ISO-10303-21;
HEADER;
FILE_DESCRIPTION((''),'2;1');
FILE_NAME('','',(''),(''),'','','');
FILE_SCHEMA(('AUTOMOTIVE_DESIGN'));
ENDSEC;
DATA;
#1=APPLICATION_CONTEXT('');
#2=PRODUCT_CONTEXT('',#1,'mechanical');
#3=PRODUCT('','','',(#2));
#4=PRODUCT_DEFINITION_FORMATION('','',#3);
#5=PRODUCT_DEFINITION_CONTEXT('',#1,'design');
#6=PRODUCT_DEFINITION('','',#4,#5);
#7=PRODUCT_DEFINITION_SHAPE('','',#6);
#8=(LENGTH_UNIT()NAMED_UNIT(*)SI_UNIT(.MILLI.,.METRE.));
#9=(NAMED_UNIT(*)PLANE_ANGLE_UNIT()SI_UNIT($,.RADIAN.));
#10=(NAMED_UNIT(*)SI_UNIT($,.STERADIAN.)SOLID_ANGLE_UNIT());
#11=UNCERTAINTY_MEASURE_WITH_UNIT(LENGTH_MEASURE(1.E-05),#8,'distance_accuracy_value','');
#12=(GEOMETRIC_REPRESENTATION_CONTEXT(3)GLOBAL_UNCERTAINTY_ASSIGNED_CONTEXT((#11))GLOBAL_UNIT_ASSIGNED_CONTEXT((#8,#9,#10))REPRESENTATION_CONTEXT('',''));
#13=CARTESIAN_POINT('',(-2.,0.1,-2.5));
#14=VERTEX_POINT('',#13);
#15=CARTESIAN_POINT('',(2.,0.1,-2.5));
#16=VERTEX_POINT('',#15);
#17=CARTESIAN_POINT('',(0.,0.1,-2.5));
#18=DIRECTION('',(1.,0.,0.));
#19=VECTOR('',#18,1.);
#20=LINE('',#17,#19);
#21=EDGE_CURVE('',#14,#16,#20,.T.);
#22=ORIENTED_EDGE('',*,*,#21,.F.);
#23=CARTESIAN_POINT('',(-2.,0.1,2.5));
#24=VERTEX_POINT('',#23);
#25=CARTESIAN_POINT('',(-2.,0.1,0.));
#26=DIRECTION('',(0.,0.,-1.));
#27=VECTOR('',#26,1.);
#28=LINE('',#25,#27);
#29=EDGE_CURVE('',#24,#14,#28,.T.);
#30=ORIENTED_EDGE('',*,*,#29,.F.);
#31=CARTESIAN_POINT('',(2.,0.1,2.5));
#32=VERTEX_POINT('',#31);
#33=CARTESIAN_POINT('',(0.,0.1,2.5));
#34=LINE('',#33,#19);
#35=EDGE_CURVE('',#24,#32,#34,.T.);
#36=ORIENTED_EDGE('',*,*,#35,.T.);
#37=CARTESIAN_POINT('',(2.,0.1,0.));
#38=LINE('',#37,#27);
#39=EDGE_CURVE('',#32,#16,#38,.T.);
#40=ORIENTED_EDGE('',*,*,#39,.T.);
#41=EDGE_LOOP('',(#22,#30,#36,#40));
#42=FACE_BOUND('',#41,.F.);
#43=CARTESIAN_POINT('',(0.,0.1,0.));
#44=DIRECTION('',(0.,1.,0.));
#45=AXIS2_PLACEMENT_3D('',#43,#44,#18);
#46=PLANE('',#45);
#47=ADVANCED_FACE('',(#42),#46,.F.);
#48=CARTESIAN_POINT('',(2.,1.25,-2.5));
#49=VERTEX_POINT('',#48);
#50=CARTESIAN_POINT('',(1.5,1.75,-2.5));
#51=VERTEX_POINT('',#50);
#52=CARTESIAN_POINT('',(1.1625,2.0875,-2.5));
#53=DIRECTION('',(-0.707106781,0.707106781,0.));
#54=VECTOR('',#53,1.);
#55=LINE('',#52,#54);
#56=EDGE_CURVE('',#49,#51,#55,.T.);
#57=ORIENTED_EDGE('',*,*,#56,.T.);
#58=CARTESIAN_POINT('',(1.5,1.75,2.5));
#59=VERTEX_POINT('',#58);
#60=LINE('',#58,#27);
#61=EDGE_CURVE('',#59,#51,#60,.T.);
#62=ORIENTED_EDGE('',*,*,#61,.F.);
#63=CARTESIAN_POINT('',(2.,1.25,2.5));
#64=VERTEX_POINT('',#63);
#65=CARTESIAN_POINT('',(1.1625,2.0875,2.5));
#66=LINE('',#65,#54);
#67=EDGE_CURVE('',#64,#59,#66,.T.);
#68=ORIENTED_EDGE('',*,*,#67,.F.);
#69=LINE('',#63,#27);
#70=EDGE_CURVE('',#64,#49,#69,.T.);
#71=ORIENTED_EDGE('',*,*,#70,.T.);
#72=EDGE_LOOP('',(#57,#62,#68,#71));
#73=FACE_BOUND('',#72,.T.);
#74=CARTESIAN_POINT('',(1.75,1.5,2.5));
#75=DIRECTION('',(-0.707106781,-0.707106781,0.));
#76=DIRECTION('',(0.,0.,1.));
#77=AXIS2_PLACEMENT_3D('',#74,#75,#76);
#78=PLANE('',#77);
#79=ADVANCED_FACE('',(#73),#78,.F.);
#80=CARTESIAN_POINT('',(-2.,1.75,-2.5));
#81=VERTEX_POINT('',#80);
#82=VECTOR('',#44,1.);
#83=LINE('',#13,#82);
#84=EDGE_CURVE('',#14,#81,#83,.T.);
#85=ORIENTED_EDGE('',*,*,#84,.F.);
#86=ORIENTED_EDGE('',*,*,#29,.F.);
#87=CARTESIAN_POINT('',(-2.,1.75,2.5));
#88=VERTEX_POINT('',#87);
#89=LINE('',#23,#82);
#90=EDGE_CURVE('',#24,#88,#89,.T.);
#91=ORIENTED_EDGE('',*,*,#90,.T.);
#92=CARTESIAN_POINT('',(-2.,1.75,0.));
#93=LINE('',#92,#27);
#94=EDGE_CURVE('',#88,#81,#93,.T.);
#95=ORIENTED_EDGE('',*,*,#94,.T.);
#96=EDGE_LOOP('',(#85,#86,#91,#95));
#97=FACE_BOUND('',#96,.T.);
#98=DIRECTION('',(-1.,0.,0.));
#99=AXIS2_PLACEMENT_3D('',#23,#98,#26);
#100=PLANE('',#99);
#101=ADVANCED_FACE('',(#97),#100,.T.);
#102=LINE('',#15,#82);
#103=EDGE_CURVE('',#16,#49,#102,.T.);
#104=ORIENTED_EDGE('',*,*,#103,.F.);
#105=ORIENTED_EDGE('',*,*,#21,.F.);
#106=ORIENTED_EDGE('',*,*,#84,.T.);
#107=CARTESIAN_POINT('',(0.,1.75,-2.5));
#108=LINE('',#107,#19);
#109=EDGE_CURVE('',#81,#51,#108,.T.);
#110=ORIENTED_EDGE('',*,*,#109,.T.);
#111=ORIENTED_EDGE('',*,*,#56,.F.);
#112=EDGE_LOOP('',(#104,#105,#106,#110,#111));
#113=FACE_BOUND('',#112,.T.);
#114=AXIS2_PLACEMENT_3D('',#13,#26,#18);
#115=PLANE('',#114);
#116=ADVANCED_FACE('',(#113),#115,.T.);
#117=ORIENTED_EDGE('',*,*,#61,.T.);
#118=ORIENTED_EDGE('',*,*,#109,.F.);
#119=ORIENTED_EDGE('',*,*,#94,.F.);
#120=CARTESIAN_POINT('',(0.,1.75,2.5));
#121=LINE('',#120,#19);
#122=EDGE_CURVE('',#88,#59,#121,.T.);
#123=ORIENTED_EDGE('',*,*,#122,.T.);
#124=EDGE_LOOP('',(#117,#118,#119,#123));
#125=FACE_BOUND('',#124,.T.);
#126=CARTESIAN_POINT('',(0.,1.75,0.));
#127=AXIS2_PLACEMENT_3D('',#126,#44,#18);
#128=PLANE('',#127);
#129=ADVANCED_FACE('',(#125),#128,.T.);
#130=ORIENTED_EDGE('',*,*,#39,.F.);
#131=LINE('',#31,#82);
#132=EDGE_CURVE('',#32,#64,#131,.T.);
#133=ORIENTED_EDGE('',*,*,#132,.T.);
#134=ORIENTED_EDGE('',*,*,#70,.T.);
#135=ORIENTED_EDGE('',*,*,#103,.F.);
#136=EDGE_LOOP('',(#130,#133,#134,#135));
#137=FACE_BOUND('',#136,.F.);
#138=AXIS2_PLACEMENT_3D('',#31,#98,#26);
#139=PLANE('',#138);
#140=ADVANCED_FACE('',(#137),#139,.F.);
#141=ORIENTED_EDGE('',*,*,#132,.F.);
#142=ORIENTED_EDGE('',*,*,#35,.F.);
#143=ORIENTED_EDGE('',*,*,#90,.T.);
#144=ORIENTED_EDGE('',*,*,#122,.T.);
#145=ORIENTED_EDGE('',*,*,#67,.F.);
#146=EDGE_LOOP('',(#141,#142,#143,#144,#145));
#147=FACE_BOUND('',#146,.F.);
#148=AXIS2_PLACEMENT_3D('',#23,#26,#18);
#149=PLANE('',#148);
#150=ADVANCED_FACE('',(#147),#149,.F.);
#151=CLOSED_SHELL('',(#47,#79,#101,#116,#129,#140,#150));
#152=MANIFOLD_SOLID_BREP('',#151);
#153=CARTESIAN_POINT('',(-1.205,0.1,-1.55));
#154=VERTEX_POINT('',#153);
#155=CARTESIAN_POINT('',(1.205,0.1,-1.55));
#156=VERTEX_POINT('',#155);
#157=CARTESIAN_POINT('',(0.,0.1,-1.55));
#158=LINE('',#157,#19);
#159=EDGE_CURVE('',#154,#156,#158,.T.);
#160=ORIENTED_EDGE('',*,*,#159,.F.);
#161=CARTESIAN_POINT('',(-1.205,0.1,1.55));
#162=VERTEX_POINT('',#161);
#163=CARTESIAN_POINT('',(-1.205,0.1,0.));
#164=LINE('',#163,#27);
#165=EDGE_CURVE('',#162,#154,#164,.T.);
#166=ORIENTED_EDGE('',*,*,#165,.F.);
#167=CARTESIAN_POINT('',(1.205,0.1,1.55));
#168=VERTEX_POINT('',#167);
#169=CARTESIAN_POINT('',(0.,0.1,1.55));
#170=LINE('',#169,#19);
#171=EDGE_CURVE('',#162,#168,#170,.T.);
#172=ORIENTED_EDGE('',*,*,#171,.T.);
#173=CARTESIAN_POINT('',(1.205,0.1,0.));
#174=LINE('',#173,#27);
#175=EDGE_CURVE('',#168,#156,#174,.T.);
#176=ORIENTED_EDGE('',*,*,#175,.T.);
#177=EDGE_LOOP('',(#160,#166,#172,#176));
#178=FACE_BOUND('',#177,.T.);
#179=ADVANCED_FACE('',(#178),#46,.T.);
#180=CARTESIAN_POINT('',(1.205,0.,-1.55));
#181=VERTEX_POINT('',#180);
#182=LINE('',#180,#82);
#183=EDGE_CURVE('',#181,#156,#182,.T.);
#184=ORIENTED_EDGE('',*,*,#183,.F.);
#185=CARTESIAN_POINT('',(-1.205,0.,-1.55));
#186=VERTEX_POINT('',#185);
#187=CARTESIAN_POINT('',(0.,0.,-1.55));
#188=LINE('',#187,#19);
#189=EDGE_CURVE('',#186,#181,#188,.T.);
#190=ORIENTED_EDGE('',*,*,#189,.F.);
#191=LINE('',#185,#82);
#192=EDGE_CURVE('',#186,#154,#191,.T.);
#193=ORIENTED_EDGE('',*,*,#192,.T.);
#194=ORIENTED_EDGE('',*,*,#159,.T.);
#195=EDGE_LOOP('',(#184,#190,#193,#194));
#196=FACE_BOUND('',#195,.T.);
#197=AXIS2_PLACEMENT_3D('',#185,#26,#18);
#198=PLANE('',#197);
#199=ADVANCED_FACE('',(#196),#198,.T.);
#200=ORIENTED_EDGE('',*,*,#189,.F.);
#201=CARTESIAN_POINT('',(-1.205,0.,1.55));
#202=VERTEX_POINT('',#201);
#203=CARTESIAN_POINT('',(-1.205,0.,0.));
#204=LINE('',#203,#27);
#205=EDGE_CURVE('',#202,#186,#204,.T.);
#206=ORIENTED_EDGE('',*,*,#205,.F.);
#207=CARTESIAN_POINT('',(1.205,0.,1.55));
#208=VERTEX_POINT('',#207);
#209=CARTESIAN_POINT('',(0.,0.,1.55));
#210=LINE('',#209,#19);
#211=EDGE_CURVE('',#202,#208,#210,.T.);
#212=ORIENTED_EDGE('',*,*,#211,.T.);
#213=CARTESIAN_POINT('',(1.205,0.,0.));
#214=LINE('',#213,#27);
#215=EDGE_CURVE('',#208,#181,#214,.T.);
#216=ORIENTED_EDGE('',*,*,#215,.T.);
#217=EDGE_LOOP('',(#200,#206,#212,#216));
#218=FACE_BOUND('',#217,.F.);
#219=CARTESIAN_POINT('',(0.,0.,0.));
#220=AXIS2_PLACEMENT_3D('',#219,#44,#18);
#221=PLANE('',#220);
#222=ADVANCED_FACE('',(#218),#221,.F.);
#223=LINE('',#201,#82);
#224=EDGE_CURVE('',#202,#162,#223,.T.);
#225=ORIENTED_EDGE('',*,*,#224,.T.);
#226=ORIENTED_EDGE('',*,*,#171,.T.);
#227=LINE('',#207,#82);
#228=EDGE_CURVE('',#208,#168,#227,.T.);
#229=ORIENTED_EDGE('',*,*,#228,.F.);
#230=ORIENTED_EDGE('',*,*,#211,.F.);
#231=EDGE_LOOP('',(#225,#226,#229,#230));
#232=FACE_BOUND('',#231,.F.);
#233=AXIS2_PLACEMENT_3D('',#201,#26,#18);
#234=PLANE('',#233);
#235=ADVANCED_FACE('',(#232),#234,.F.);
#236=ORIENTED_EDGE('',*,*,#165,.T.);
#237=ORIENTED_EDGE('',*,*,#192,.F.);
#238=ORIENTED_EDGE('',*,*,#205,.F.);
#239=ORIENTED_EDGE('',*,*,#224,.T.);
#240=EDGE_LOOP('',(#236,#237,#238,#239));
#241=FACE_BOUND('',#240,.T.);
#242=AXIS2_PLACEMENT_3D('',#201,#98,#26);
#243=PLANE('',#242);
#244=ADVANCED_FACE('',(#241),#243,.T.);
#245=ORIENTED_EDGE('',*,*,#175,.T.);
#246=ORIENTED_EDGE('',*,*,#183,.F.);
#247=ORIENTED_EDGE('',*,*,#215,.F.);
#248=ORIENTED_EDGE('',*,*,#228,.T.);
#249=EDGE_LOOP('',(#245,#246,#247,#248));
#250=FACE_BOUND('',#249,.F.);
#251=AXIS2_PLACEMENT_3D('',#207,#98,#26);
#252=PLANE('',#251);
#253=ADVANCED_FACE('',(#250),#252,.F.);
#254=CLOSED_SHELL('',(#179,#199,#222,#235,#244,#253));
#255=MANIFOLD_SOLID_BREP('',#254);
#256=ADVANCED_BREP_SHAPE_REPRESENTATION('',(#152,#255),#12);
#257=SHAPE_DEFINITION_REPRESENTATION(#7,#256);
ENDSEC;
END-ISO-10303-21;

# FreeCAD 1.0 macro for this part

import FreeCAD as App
import Part
import Sketcher

V = App.Vector
Q = App.Units.Quantity


def edges_at(feature, points):
    """Names of the edges that pass closest to the given points."""
    edges = feature.Shape.Edges
    near = lambda p: min(range(len(edges)), key=lambda i: edges[i].distToShape(Part.Vertex(*p))[0])
    return sorted({f"Edge{near(p) + 1}" for p in points})

doc = App.newDocument("Part")
params = doc.addObject("Spreadsheet::Sheet", "Params")
for row, (alias, value) in enumerate([
    ("sketch1_width", "4 mm"),
    ("sketch1_height", "5 mm"),
    ("pad1_length", "1.65 mm"),
    ("chamfer_size", "0.5 mm"),
    ("sketch2_height", "3.1 mm"),
    ("sketch2_width", "2.41 mm"),
    ("pad2_length", "0.1 mm"),
], start=1):
    params.set(f"A{row}", alias)
    params.set(f"B{row}", "=" + value)
    params.setAlias(f"B{row}", alias)

body = doc.addObject("PartDesign::Body", "Body")

# Sketch on XZ plane
sketch1 = body.newObject("Sketcher::SketchObject", "Sketch")
sketch1.AttachmentSupport = (doc.getObject("XZ_Plane"), [""])
sketch1.MapMode = "FlatFace"
sketch1.AttachmentOffset = App.Placement(V(0, 0, -0.1), App.Rotation())
sketch1.addGeometry([
    Part.LineSegment(V(-2, -2.5, 0), V(-2, 2.5, 0)),
    Part.LineSegment(V(-2, 2.5, 0), V(2, 2.5, 0)),
    Part.LineSegment(V(2, 2.5, 0), V(2, -2.5, 0)),
    Part.LineSegment(V(2, -2.5, 0), V(-2, -2.5, 0)),
], False)
sketch1.addConstraint([
    Sketcher.Constraint("Coincident", 0, 2, 1, 1),
    Sketcher.Constraint("Coincident", 1, 2, 2, 1),
    Sketcher.Constraint("Coincident", 2, 2, 3, 1),
    Sketcher.Constraint("Coincident", 3, 2, 0, 1),
    Sketcher.Constraint("Vertical", 0),
    Sketcher.Constraint("Horizontal", 1),
    Sketcher.Constraint("Vertical", 2),
    Sketcher.Constraint("Horizontal", 3),
    Sketcher.Constraint("Symmetric", 0, 2, 2, 2, -1, 1),
    Sketcher.Constraint("DistanceX", 1, 1, 1, 2, Q("4 mm")),
    Sketcher.Constraint("DistanceY", 0, 1, 0, 2, Q("5 mm")),
])
sketch1.setExpression("Constraints[9]", "Params.sketch1_width")
sketch1.setExpression("Constraints[10]", "Params.sketch1_height")
pad1 = body.newObject("PartDesign::Pad", "Pad")
pad1.Profile = sketch1
pad1.setExpression("Length", "Params.pad1_length")
pad1.Reversed = True
doc.recompute()

chamfer = body.newObject("PartDesign::Chamfer", "Chamfer")
chamfer.Base = (pad1, edges_at(pad1, [(2, 1.75, 0)]))
chamfer.setExpression("Size", "Params.chamfer_size")
body2 = doc.addObject("PartDesign::Body", "Body001")

# Sketch on XZ plane
sketch2 = body2.newObject("Sketcher::SketchObject", "Sketch001")
sketch2.AttachmentSupport = (doc.getObject("XZ_Plane001"), [""])
sketch2.MapMode = "FlatFace"
sketch2.addGeometry([
    Part.LineSegment(V(-1.205, -1.55, 0), V(-1.205, 1.55, 0)),
    Part.LineSegment(V(-1.205, 1.55, 0), V(1.205, 1.55, 0)),
    Part.LineSegment(V(1.205, 1.55, 0), V(1.205, -1.55, 0)),
    Part.LineSegment(V(1.205, -1.55, 0), V(-1.205, -1.55, 0)),
], False)
sketch2.addConstraint([
    Sketcher.Constraint("Coincident", 0, 2, 1, 1),
    Sketcher.Constraint("Coincident", 1, 2, 2, 1),
    Sketcher.Constraint("Coincident", 2, 2, 3, 1),
    Sketcher.Constraint("Coincident", 3, 2, 0, 1),
    Sketcher.Constraint("Vertical", 0),
    Sketcher.Constraint("Horizontal", 1),
    Sketcher.Constraint("Vertical", 2),
    Sketcher.Constraint("Horizontal", 3),
    Sketcher.Constraint("Symmetric", 0, 2, 2, 2, -1, 1),
    Sketcher.Constraint("DistanceY", 0, 1, 0, 2, Q("3.1 mm")),
    Sketcher.Constraint("DistanceX", 1, 1, 1, 2, Q("2.41 mm")),
])
sketch2.setExpression("Constraints[9]", "Params.sketch2_height")
sketch2.setExpression("Constraints[10]", "Params.sketch2_width")
pad2 = body2.newObject("PartDesign::Pad", "Pad001")
pad2.Profile = sketch2
pad2.setExpression("Length", "Params.pad2_length")
pad2.Reversed = True

doc.recompute()
